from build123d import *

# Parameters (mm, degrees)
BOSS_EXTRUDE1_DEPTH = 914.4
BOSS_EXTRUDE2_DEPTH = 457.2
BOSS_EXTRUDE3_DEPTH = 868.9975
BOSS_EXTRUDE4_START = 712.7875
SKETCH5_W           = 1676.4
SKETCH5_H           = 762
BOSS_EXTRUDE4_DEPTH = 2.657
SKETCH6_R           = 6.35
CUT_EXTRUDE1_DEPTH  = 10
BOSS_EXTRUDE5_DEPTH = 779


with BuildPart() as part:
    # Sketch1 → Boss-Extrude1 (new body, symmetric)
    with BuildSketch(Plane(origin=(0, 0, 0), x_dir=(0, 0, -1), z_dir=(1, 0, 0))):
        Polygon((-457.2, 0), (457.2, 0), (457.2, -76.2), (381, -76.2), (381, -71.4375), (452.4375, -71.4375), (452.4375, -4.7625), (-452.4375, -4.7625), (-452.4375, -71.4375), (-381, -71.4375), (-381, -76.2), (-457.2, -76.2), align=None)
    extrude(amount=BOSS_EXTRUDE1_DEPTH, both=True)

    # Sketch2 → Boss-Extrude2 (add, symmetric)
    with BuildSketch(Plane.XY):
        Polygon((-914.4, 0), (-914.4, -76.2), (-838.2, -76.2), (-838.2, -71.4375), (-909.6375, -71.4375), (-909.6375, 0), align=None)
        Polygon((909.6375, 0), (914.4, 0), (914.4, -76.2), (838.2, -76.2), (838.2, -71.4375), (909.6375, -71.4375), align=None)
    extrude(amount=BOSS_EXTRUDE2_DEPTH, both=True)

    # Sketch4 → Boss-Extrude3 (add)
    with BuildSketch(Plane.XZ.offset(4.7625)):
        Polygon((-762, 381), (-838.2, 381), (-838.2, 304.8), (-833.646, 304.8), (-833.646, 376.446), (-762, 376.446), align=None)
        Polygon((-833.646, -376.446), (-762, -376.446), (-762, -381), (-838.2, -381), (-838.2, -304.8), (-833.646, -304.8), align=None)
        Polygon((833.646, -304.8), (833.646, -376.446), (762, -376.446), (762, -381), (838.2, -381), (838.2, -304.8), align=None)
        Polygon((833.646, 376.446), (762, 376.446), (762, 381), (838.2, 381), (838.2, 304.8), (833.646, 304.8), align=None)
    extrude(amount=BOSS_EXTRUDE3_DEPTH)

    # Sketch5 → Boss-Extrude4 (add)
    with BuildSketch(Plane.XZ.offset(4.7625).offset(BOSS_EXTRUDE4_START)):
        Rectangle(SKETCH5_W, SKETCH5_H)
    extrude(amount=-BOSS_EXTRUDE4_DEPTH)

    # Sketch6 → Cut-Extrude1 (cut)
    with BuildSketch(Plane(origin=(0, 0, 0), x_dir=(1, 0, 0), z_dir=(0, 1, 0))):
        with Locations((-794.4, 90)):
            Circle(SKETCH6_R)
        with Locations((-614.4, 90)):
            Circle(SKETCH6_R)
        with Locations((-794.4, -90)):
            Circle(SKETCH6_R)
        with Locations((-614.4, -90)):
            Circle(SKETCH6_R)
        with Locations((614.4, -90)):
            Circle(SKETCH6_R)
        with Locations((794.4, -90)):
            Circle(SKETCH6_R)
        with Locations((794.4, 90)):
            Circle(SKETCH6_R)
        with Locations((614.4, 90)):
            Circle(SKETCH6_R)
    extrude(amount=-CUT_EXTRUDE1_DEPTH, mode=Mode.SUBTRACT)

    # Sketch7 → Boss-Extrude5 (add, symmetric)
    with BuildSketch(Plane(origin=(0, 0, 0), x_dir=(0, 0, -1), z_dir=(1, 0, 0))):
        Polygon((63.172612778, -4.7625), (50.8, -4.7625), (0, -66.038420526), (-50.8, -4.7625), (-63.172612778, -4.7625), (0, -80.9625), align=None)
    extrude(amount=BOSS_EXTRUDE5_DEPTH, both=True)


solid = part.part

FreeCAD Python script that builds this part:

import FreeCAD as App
import Part
import Sketcher
from FreeCAD import Vector
Q = App.Units.Quantity


def add_polygon(sketch, points):
    """Adds a closed chain of lines whose ends are joined by coincident constraints."""
    first, n = sketch.GeometryCount, len(points)
    for a, b in zip(points, points[1:] + points[:1]):
        sketch.addGeometry(Part.LineSegment(App.Vector(*a, 0), App.Vector(*b, 0)), False)
    for i in range(n):
        sketch.addConstraint(Sketcher.Constraint("Coincident", first + i, 2, first + (i + 1) % n, 1))

doc = App.newDocument("Part")
body = doc.addObject("PartDesign::Body", "Body")

# Sketch on YZ plane
sketch1 = doc.addObject("Sketcher::SketchObject", "Sketch")
body.addObject(sketch1)
sketch1.AttachmentSupport = (doc.YZ_Plane, [""])
sketch1.MapMode = "FlatFace"
add_polygon(sketch1, [(0, -457.2), (0, 457.2), (-76.2, 457.2), (-76.2, 381), (-71.4, 381), (-71.4, 452.4), (-4.8, 452.4), (-4.8, -452.4), (-71.4, -452.4), (-71.4, -381), (-76.2, -381), (-76.2, -457.2)])  # lines 0-11
sketch1.addConstraint([
    Sketcher.Constraint("Vertical", 0),
    Sketcher.Constraint("Horizontal", 1),
    Sketcher.Constraint("Vertical", 2),
    Sketcher.Constraint("Horizontal", 3),
    Sketcher.Constraint("Vertical", 4),
    Sketcher.Constraint("Horizontal", 5),
    Sketcher.Constraint("Vertical", 6),
    Sketcher.Constraint("Horizontal", 7),
    Sketcher.Constraint("Vertical", 8),
    Sketcher.Constraint("Horizontal", 9),
    Sketcher.Constraint("Vertical", 10),
    Sketcher.Constraint("Horizontal", 11),
    Sketcher.Constraint("Symmetric", 0, 2, 11, 2, -1, 1),
    Sketcher.Constraint("Symmetric", 4, 2, 7, 2, -1),
    Sketcher.Constraint("Symmetric", 2, 2, 9, 2, -1),
    Sketcher.Constraint("Equal", 11, 2),
    Sketcher.Constraint("DistanceX", 1, 2, 1, 1, Q("3 in")),
    Sketcher.Constraint("DistanceY", 0, 1, 0, 2, Q("36 in")),
    Sketcher.Constraint("DistanceX", 3, 1, 3, 2, Q("0.1875 in")),
    Sketcher.Constraint("DistanceX", 5, 1, 5, 2, Q("2.625 in")),
    Sketcher.Constraint("DistanceY", 4, 1, 4, 2, Q("2.8125 in")),
])
pad1 = doc.addObject("PartDesign::Pad", "Pad")
body.addObject(pad1)
pad1.Profile = sketch1
pad1.Length = Q("72 in")
pad1.Midplane = True

# Sketch on XY plane
sketch2 = doc.addObject("Sketcher::SketchObject", "Sketch001")
body.addObject(sketch2)
sketch2.AttachmentSupport = (doc.XY_Plane, [""])
sketch2.MapMode = "FlatFace"
add_polygon(sketch2, [(-914.4, 0), (-914.4, -76.2), (-838.2, -76.2), (-838.2, -71.4), (-909.6, -71.4), (-909.6, 0)])  # lines 0-5
add_polygon(sketch2, [(914.4, 0), (909.6, 0), (909.6, -71.4), (838.2, -71.4), (838.2, -76.2), (914.4, -76.2)])  # lines 6-11
sketch2.addConstraint([
    Sketcher.Constraint("Vertical", 0),
    Sketcher.Constraint("Horizontal", 1),
    Sketcher.Constraint("Vertical", 2),
    Sketcher.Constraint("Horizontal", 3),
    Sketcher.Constraint("Vertical", 4),
    Sketcher.Constraint("Horizontal", 5),
    Sketcher.Constraint("Horizontal", 6),
    Sketcher.Constraint("Vertical", 7),
    Sketcher.Constraint("Horizontal", 8),
    Sketcher.Constraint("Vertical", 9),
    Sketcher.Constraint("Horizontal", 10),
    Sketcher.Constraint("Vertical", 11),
    Sketcher.Constraint("Symmetric", 4, 2, 6, 2, -1, 1),
    Sketcher.Constraint("Symmetric", 2, 2, 8, 2, -2),
    Sketcher.Constraint("Symmetric", 0, 2, 10, 2, -2),
    Sketcher.Constraint("PointOnObject", 4, 2, -1),
    Sketcher.Constraint("Equal", 10, 0),
    Sketcher.Constraint("Equal", 6, 2),
    Sketcher.Constraint("DistanceX", 1, 1, 1, 2, Q("3 in")),
    Sketcher.Constraint("DistanceX", 0, 2, -1, 1, Q("36 in")),
    Sketcher.Constraint("DistanceX", 3, 2, 3, 1, Q("2.8125 in")),
])
pad2 = doc.addObject("PartDesign::Pad", "Pad001")
body.addObject(pad2)
pad2.Profile = sketch2
pad2.Length = Q("36 in")
pad2.Midplane = True

# Sketch on XZ plane
sketch3 = doc.addObject("Sketcher::SketchObject", "Sketch002")
body.addObject(sketch3)
sketch3.AttachmentSupport = (doc.XZ_Plane, [""])
sketch3.MapMode = "FlatFace"
sketch3.AttachmentOffset = App.Placement(Vector(0, 0, 0.1875 * 25.4), App.Rotation())
add_polygon(sketch3, [(-762, 381), (-838.2, 381), (-838.2, 304.8), (-833.6, 304.8), (-833.6, 376.4), (-762, 376.4)])  # lines 0-5
add_polygon(sketch3, [(-762, -376.4), (-833.6, -376.4), (-833.6, -304.8), (-838.2, -304.8), (-838.2, -381), (-762, -381)])  # lines 6-11
add_polygon(sketch3, [(833.6, -304.8), (833.6, -376.4), (762, -376.4), (762, -381), (838.2, -381), (838.2, -304.8)])  # lines 12-17
add_polygon(sketch3, [(762, 376.4), (833.6, 376.4), (833.6, 304.8), (838.2, 304.8), (838.2, 381), (762, 381)])  # lines 18-23
sketch3.addConstraint([
    Sketcher.Constraint("Horizontal", 0),
    Sketcher.Constraint("Vertical", 1),
    Sketcher.Constraint("Horizontal", 2),
    Sketcher.Constraint("Vertical", 3),
    Sketcher.Constraint("Horizontal", 4),
    Sketcher.Constraint("Vertical", 5),
    Sketcher.Constraint("Horizontal", 6),
    Sketcher.Constraint("Vertical", 7),
    Sketcher.Constraint("Horizontal", 8),
    Sketcher.Constraint("Vertical", 9),
    Sketcher.Constraint("Horizontal", 10),
    Sketcher.Constraint("Vertical", 11),
    Sketcher.Constraint("Vertical", 12),
    Sketcher.Constraint("Horizontal", 13),
    Sketcher.Constraint("Vertical", 14),
    Sketcher.Constraint("Horizontal", 15),
    Sketcher.Constraint("Vertical", 16),
    Sketcher.Constraint("Horizontal", 17),
    Sketcher.Constraint("Horizontal", 18),
    Sketcher.Constraint("Vertical", 19),
    Sketcher.Constraint("Horizontal", 20),
    Sketcher.Constraint("Vertical", 21),
    Sketcher.Constraint("Horizontal", 22),
    Sketcher.Constraint("Vertical", 23),
    Sketcher.Constraint("Symmetric", 3, 2, 12, 2, -1, 1),
    Sketcher.Constraint("Symmetric", 5, 2, 14, 2, -1, 1),
    Sketcher.Constraint("Symmetric", 1, 2, 16, 2, -1, 1),
    Sketcher.Constraint("Symmetric", 6, 2, 18, 2, -1, 1),
    Sketcher.Constraint("Symmetric", 8, 2, 20, 2, -1, 1),
    Sketcher.Constraint("Symmetric", 10, 2, 22, 2, -1, 1),
    Sketcher.Constraint("Symmetric", 6, 2, 12, 2, -2),
    Sketcher.Constraint("Symmetric", 10, 2, 14, 2, -2),
    Sketcher.Constraint("Symmetric", 8, 2, 16, 2, -2),
    Sketcher.Constraint("Equal", 22, 1),
    Sketcher.Constraint("Equal", 18, 3),
    Sketcher.Constraint("DistanceX", 0, 2, 0, 1, Q("3 in")),
    Sketcher.Constraint("DistanceX", 0, 2, -1, 1, Q("33 in")),
    Sketcher.Constraint("DistanceY", -1, 1, 0, 2, Q("15 in")),
    Sketcher.Constraint("DistanceX", 2, 1, 2, 2, 4.554),
])
pad3 = doc.addObject("PartDesign::Pad", "Pad002")
body.addObject(pad3)
pad3.Profile = sketch3
pad3.Length = Q("34.2125 in")

# Sketch on XZ plane
sketch4 = doc.addObject("Sketcher::SketchObject", "Sketch003")
body.addObject(sketch4)
sketch4.AttachmentSupport = (doc.XZ_Plane, [""])
sketch4.MapMode = "FlatFace"
sketch4.AttachmentOffset = App.Placement(Vector(0, 0, 28.25 * 25.4), App.Rotation())
add_polygon(sketch4, [(-838, 381), (-838, -381), (838, -381), (838, 381)])  # lines 0-3
sketch4.addConstraint([
    Sketcher.Constraint("Vertical", 0),
    Sketcher.Constraint("Horizontal", 1),
    Sketcher.Constraint("Vertical", 2),
    Sketcher.Constraint("Horizontal", 3),
    Sketcher.Constraint("Symmetric", 0, 2, 2, 2, -1, 1),
    Sketcher.Constraint("DistanceX", 1, 1, 1, 2, Q("66 in")),
    Sketcher.Constraint("DistanceY", 0, 2, 0, 1, Q("30 in")),
])
pad4 = doc.addObject("PartDesign::Pad", "Pad003")
body.addObject(pad4)
pad4.Profile = sketch4
pad4.Length = 2.657
pad4.Reversed = True

# Sketch on XZ plane
sketch5 = doc.addObject("Sketcher::SketchObject", "Sketch004")
body.addObject(sketch5)
sketch5.AttachmentSupport = (doc.XZ_Plane, [""])
sketch5.MapMode = "FlatFace"
sketch5.addGeometry([
    Part.Circle(Vector(-794, -90, 0), Vector(0, 0, 1), 6),  # 0
    Part.Circle(Vector(-614, -90, 0), Vector(0, 0, 1), 6),  # 1
    Part.Circle(Vector(-794, 90, 0), Vector(0, 0, 1), 6),  # 2
    Part.Circle(Vector(-614, 90, 0), Vector(0, 0, 1), 6),  # 3
    Part.Circle(Vector(614, 90, 0), Vector(0, 0, 1), 6),  # 4
    Part.Circle(Vector(794, 90, 0), Vector(0, 0, 1), 6),  # 5
    Part.Circle(Vector(794, -90, 0), Vector(0, 0, 1), 6),  # 6
    Part.Circle(Vector(614, -90, 0), Vector(0, 0, 1), 6),  # 7
], False)
sketch5.addConstraint([
    Sketcher.Constraint("Equal", 0, 1),
    Sketcher.Constraint("Equal", 1, 2),
    Sketcher.Constraint("Equal", 2, 3),
    Sketcher.Constraint("Equal", 3, 4),
    Sketcher.Constraint("Equal", 4, 5),
    Sketcher.Constraint("Equal", 5, 6),
    Sketcher.Constraint("Equal", 6, 7),
    Sketcher.Constraint("Symmetric", 1, 3, 4, 3, -1, 1),
    Sketcher.Constraint("Symmetric", 0, 3, 5, 3, -1, 1),
    Sketcher.Constraint("Symmetric", 2, 3, 6, 3, -1, 1),
    Sketcher.Constraint("Symmetric", 3, 3, 7, 3, -1, 1),
    Sketcher.Constraint("Symmetric", 3, 3, 4, 3, -2),
    Sketcher.Constraint("Symmetric", 2, 3, 5, 3, -2),
    Sketcher.Constraint("Horizontal", 0, 3, 1, 3),
    Sketcher.Constraint("Diameter", 0, Q("0.5 in")),
    Sketcher.Constraint("DistanceX", 0, 3, -1, 1, 794.4),
    Sketcher.Constraint("DistanceY", 0, 3, -1, 1, 90.0),
    Sketcher.Constraint("DistanceX", 1, 3, -1, 1, 614.4),
])
pocket1 = doc.addObject("PartDesign::Pocket", "Pocket")
body.addObject(pocket1)
pocket1.Profile = sketch5
pocket1.Length = 10
pocket1.Reversed = True

# Sketch on YZ plane
sketch6 = doc.addObject("Sketcher::SketchObject", "Sketch005")
body.addObject(sketch6)
sketch6.AttachmentSupport = (doc.YZ_Plane, [""])
sketch6.MapMode = "FlatFace"
add_polygon(sketch6, [(-5, -63), (-5, -51), (-66, 0), (-5, 51), (-5, 63), (-81, 0)])  # lines 0-5
sketch6.addConstraint([
    Sketcher.Constraint("Vertical", 0),
    Sketcher.Constraint("Vertical", 3),
    Sketcher.Constraint("Symmetric", 0, 2, 2, 2, -1),
    Sketcher.Constraint("PointOnObject", 1, 2, -1),
    Sketcher.Constraint("PointOnObject", 4, 2, -1),
    Sketcher.Constraint("Parallel", 2, 4),
    Sketcher.Constraint("Parallel", 1, 5),
    Sketcher.Constraint("DistanceY", 0, 2, -1, 1, Q("2 in")),
    Sketcher.Constraint("DistanceX", 4, 2, 0, 2, Q("3 in")),
    Sketcher.Constraint("Angle", 1, Q("140.340015 deg")),
    Sketcher.Constraint("DistanceX", 0, 2, -1, 1, Q("0.1875 in")),
])
pad5 = doc.addObject("PartDesign::Pad", "Pad004")
body.addObject(pad5)
pad5.Profile = sketch6
pad5.Length = 1558
pad5.Midplane = True

doc.recompute()
